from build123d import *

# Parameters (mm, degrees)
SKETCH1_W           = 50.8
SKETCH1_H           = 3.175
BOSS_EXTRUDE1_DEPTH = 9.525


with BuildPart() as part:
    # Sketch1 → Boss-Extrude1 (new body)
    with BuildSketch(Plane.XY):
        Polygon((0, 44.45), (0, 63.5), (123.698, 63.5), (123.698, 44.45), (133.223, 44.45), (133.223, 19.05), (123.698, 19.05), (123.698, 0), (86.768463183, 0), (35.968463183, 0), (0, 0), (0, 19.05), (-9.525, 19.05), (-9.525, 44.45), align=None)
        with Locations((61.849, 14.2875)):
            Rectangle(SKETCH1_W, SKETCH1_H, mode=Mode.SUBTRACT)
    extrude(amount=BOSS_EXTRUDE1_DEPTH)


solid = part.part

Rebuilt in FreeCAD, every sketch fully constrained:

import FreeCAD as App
import Part
import Sketcher

V = App.Vector
Q = App.Units.Quantity


def add_polygon(sketch, points):
    """Adds a closed chain of lines whose ends are joined by coincident constraints."""
    first, n = sketch.GeometryCount, len(points)
    for a, b in zip(points, points[1:] + points[:1]):
        sketch.addGeometry(Part.LineSegment(App.Vector(*a, 0), App.Vector(*b, 0)), False)
    for i in range(n):
        sketch.addConstraint(Sketcher.Constraint("Coincident", first + i, 2, first + (i + 1) % n, 1))

doc = App.newDocument("Part")
params = doc.addObject("Spreadsheet::Sheet", "Params")
for row, (alias, value) in enumerate([
    ("sketch1_width", "2 in"),
    ("sketch1_height", "1 in"),
    ("sketch1_width2", "4.87 in"),
    ("sketch1_height2", "0.75 in"),
    ("sketch1_width3", "0.375 in"),
    ("pad1_length", "0.375 in"),
], start=1):
    params.set(f"A{row}", alias)
    params.set(f"B{row}", "=" + value)
    params.setAlias(f"B{row}", alias)

body = doc.addObject("PartDesign::Body", "Body")

# Sketch on XY plane
sketch1 = body.newObject("Sketcher::SketchObject", "Sketch")
sketch1.AttachmentSupport = (doc.getObject("XY_Plane"), [""])
sketch1.MapMode = "FlatFace"
add_polygon(sketch1, [(0, 63.5), (0, 44.5), (-9.5, 44.5), (-9.5, 19.1), (0, 19.1), (0, 0), (123.7, 0), (123.7, 19.1), (133.2, 19.1), (133.2, 44.5), (123.7, 44.5), (123.7, 63.5)])  # lines 0-11
add_polygon(sketch1, [(36.4, 12.7), (36.4, 15.9), (87.2, 15.9), (87.2, 12.7)])  # lines 12-15
sketch1.addConstraint([
    Sketcher.Constraint("Vertical", 0),
    Sketcher.Constraint("Horizontal", 1),
    Sketcher.Constraint("Vertical", 2),
    Sketcher.Constraint("Horizontal", 3),
    Sketcher.Constraint("Vertical", 4),
    Sketcher.Constraint("Horizontal", 5),
    Sketcher.Constraint("Vertical", 6),
    Sketcher.Constraint("Horizontal", 7),
    Sketcher.Constraint("Vertical", 8),
    Sketcher.Constraint("Horizontal", 9),
    Sketcher.Constraint("Vertical", 10),
    Sketcher.Constraint("Horizontal", 11),
    Sketcher.Constraint("Vertical", 12),
    Sketcher.Constraint("Horizontal", 13),
    Sketcher.Constraint("Vertical", 14),
    Sketcher.Constraint("Horizontal", 15),
    Sketcher.Constraint("Coincident", 4, 2, -1, 1),
    Sketcher.Constraint("PointOnObject", 0, 2, -2),
    Sketcher.Constraint("Horizontal", 3, 2, 6, 2),
    Sketcher.Constraint("Horizontal", 1, 2, 8, 2),
    Sketcher.Constraint("Vertical", 6, 2, 9, 2),
    Sketcher.Constraint("Equal", 3, 7),
    Sketcher.Constraint("Equal", 0, 4),
    Sketcher.Constraint("DistanceX", 13, 1, 13, 2, Q("2 in")),
    Sketcher.Constraint("DistanceY", 2, 2, 2, 1, Q("1 in")),
    Sketcher.Constraint("DistanceX", 5, 1, 5, 2, Q("4.87 in")),
    Sketcher.Constraint("DistanceY", 0, 2, 0, 1, Q("0.75 in")),
    Sketcher.Constraint("DistanceY", -1, 1, 14, 2, Q("0.5 in")),
    Sketcher.Constraint("DistanceX", 1, 2, 1, 1, Q("0.375 in")),
    Sketcher.Constraint("DistanceY", 12, 1, 12, 2, Q("0.125 in")),
    Sketcher.Constraint("DistanceX", 2, 2, 12, 2, Q("1.81 in")),
])
sketch1.setExpression("Constraints[39]", "Params.sketch1_width")
sketch1.setExpression("Constraints[40]", "Params.sketch1_height")
sketch1.setExpression("Constraints[41]", "Params.sketch1_width2")
sketch1.setExpression("Constraints[42]", "Params.sketch1_height2")
sketch1.setExpression("Constraints[44]", "Params.sketch1_width3")
pad1 = body.newObject("PartDesign::Pad", "Pad")
pad1.Profile = sketch1
pad1.setExpression("Length", "Params.pad1_length")

doc.recompute()
